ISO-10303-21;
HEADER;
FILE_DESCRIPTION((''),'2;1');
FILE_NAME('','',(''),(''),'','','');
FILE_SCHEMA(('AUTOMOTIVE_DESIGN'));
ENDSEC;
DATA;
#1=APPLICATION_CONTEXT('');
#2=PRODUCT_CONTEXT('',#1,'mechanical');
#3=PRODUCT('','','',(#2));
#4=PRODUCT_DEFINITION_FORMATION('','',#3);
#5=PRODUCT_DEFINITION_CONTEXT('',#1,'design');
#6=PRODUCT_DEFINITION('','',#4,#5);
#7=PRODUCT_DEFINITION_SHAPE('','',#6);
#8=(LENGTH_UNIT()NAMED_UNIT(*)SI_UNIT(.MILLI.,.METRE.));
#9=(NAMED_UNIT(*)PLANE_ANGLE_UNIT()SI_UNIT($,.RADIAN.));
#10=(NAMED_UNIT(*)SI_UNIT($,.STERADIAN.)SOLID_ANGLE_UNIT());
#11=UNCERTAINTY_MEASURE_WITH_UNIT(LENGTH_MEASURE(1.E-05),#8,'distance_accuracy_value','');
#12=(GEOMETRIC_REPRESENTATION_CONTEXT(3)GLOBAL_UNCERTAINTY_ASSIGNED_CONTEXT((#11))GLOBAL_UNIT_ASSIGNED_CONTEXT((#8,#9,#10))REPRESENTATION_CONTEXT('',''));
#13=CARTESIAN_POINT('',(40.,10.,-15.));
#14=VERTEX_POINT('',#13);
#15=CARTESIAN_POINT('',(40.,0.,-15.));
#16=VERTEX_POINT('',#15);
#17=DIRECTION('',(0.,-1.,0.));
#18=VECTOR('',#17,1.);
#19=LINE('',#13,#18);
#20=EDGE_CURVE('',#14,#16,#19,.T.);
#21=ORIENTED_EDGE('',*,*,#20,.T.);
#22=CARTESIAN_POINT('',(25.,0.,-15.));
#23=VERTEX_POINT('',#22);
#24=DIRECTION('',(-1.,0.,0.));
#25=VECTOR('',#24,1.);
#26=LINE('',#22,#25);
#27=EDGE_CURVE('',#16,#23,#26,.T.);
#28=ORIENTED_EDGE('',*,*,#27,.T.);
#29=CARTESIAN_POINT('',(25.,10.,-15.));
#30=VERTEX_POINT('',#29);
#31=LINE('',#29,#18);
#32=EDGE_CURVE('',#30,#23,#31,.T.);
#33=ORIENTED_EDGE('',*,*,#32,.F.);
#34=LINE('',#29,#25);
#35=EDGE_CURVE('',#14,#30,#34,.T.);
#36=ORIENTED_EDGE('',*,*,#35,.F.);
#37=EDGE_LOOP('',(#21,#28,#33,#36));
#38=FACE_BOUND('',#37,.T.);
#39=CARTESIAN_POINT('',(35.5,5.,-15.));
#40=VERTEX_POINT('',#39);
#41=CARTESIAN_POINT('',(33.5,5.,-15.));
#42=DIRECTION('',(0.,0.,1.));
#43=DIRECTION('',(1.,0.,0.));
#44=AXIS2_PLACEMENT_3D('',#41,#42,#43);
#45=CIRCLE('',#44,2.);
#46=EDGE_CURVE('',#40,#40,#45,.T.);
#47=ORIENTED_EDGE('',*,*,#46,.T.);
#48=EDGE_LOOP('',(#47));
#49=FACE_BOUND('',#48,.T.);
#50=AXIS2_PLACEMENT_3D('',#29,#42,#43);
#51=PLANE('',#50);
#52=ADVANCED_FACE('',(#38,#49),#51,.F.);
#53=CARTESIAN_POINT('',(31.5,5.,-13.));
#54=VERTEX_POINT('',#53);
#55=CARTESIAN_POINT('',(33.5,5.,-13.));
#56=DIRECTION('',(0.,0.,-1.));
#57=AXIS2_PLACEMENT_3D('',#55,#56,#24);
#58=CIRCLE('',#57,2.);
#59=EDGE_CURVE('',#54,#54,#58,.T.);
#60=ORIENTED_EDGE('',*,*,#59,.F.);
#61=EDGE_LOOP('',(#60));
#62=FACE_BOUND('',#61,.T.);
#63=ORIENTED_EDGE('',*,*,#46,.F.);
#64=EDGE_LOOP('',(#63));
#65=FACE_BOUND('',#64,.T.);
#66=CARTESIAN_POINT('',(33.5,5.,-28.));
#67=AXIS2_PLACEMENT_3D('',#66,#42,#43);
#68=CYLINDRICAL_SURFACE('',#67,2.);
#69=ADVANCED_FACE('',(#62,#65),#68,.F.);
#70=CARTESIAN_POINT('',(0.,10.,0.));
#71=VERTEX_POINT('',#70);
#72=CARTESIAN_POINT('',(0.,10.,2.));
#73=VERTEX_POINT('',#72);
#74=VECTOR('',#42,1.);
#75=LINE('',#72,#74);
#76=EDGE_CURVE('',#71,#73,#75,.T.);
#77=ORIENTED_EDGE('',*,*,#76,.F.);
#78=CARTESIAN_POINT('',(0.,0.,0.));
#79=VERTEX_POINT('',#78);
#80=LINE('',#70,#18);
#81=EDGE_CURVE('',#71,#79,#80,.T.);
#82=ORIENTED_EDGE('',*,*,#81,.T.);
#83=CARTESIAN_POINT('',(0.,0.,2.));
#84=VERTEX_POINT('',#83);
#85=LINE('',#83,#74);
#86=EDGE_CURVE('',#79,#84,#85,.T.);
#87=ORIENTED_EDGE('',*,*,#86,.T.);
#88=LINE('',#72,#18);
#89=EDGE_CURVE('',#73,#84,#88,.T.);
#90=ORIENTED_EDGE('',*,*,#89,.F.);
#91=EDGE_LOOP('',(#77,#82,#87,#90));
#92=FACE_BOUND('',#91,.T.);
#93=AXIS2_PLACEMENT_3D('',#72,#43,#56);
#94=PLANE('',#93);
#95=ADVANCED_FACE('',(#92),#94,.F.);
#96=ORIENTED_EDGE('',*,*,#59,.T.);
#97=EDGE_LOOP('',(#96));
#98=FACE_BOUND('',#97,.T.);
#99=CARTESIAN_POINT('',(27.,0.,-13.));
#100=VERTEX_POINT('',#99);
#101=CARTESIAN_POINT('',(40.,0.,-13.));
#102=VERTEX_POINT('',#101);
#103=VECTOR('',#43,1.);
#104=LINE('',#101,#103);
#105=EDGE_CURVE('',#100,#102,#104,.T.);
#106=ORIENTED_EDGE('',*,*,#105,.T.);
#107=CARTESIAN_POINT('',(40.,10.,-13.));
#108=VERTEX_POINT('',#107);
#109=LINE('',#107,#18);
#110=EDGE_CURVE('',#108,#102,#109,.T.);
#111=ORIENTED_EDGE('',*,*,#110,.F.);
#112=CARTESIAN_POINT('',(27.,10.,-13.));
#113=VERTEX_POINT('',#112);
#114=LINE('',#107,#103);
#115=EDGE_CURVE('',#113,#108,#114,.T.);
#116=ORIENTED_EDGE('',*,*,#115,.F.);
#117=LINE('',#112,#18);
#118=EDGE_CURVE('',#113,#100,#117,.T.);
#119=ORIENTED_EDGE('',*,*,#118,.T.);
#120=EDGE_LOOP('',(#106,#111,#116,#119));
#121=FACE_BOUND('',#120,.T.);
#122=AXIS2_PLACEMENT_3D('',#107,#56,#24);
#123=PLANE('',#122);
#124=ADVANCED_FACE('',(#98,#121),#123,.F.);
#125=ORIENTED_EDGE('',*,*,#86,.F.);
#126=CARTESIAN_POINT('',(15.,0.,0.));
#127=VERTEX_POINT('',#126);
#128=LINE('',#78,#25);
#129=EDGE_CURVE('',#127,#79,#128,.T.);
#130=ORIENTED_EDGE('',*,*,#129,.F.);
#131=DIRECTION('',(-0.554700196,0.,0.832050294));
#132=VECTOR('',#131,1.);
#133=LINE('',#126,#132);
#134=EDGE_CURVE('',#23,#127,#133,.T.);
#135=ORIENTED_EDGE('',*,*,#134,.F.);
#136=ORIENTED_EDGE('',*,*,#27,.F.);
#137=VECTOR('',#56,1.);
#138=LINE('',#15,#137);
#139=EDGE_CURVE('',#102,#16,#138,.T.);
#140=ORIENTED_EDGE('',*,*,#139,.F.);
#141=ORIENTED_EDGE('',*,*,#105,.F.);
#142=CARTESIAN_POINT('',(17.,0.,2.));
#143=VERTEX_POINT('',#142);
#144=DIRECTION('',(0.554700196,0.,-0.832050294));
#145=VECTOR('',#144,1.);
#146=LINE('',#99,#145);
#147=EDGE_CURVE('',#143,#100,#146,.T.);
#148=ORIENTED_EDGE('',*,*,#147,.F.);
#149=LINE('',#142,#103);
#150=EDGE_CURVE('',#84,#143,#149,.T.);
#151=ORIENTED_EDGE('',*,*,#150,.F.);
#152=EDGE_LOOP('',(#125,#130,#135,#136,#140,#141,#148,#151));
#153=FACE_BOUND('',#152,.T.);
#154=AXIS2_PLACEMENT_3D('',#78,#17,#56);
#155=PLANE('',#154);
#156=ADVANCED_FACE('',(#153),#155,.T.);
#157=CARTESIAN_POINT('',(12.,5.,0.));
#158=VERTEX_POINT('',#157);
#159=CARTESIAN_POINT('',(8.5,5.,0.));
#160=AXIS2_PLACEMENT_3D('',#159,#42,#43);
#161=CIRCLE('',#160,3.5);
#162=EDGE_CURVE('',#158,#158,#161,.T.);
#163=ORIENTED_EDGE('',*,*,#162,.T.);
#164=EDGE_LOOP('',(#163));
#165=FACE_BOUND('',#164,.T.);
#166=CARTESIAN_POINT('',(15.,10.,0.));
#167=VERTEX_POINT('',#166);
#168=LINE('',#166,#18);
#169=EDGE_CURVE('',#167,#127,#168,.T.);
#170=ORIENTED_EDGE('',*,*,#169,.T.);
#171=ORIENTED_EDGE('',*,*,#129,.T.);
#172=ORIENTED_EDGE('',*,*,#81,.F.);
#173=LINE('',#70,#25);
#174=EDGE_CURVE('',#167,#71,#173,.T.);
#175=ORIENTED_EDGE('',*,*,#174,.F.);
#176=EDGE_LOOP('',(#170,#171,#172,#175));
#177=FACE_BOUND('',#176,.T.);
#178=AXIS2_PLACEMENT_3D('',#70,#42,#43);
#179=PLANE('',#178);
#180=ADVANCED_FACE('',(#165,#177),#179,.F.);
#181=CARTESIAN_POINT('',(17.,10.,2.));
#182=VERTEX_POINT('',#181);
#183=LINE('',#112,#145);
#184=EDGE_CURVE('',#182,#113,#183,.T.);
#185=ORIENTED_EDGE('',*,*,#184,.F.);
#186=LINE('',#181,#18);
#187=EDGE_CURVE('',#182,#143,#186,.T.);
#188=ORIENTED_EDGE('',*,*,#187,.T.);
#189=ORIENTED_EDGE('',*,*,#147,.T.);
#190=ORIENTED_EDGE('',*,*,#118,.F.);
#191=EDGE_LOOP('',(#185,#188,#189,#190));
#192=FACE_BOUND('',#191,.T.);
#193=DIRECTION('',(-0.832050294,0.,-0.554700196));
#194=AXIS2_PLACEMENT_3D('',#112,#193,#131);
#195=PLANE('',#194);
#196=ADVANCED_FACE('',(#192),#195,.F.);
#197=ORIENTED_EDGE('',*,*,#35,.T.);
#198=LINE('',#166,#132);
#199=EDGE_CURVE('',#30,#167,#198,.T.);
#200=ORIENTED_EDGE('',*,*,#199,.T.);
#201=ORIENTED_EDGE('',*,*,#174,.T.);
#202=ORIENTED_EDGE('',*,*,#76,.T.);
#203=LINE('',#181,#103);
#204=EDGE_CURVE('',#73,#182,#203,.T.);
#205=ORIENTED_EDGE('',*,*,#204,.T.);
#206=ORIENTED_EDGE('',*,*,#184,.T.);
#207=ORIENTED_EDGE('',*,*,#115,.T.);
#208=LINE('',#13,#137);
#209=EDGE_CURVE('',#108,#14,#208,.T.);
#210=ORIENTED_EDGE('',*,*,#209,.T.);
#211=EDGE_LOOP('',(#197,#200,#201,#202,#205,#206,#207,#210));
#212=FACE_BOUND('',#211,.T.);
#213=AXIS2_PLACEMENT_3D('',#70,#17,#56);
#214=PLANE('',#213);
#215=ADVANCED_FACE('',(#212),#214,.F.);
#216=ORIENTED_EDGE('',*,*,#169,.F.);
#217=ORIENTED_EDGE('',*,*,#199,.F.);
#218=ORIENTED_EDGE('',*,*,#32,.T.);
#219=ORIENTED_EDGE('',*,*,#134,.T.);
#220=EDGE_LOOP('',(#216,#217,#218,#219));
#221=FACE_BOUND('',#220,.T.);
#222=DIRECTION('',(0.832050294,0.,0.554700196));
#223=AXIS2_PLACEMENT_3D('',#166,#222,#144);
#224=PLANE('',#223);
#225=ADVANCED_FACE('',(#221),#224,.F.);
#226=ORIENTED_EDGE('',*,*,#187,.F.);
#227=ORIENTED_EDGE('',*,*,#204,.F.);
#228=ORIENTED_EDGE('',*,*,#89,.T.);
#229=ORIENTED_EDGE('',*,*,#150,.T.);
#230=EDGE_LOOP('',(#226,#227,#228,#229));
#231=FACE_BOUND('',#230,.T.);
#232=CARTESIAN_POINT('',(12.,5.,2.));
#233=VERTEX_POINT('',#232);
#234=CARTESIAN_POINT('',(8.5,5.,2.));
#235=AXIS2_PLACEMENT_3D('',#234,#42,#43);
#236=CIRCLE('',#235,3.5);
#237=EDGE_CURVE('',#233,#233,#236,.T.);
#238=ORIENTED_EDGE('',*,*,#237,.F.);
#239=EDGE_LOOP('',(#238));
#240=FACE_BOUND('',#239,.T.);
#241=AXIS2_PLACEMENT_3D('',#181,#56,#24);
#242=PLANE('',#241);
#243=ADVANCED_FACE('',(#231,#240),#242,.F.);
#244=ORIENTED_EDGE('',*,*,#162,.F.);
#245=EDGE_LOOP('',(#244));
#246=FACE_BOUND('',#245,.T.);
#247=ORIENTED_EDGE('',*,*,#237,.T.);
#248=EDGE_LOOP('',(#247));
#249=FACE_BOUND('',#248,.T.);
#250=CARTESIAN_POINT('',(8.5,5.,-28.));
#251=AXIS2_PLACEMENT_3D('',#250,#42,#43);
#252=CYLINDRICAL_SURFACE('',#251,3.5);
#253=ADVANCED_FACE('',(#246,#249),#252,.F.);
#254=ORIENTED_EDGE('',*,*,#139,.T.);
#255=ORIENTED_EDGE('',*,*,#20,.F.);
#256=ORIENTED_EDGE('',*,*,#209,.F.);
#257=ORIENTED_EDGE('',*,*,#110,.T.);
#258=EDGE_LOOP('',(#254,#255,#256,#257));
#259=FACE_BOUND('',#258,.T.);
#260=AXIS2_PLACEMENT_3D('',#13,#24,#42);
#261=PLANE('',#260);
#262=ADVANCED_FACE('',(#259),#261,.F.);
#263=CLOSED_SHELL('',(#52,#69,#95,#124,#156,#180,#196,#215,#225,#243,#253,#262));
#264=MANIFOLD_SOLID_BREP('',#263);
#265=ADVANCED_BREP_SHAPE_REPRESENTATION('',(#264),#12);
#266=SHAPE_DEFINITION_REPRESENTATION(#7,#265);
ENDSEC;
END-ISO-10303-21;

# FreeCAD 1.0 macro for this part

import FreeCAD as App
import Part
import Sketcher

V = App.Vector
Q = App.Units.Quantity


def add_polygon(sketch, points):
    """Adds a closed chain of lines whose ends are joined by coincident constraints."""
    first, n = sketch.GeometryCount, len(points)
    for a, b in zip(points, points[1:] + points[:1]):
        sketch.addGeometry(Part.LineSegment(App.Vector(*a, 0), App.Vector(*b, 0)), False)
    for i in range(n):
        sketch.addConstraint(Sketcher.Constraint("Coincident", first + i, 2, first + (i + 1) % n, 1))

doc = App.newDocument("Part")
params = doc.addObject("Spreadsheet::Sheet", "Params")
for row, (alias, value) in enumerate([
    ("sketch1_width", "15 mm"),
    ("sketch1_width2", "17 mm"),
    ("sketch1_height", "2 mm"),
    ("pad1_length", "10 mm"),
    ("sketch2_diameter", "7 mm"),
    ("sketch2_diameter2", "4 mm"),
    ("pocket1_length", "30 mm"),
], start=1):
    params.set(f"A{row}", alias)
    params.set(f"B{row}", "=" + value)
    params.setAlias(f"B{row}", alias)

body = doc.addObject("PartDesign::Body", "Body")

# Sketch on XZ plane
sketch1 = body.newObject("Sketcher::SketchObject", "Sketch")
sketch1.AttachmentSupport = (doc.getObject("XZ_Plane"), [""])
sketch1.MapMode = "FlatFace"
add_polygon(sketch1, [(15, 0), (0, 0), (0, 2), (17, 2), (27, -13), (40, -13), (40, -15), (25, -15)])  # lines 0-7
sketch1.addConstraint([
    Sketcher.Constraint("Horizontal", 0),
    Sketcher.Constraint("Vertical", 1),
    Sketcher.Constraint("Horizontal", 2),
    Sketcher.Constraint("Horizontal", 4),
    Sketcher.Constraint("Vertical", 5),
    Sketcher.Constraint("Horizontal", 6),
    Sketcher.Constraint("Coincident", 0, 2, -1, 1),
    Sketcher.Constraint("Parallel", 3, 7),
    Sketcher.Constraint("Equal", 0, 6),
    Sketcher.Constraint("Equal", 1, 5),
    Sketcher.Constraint("DistanceX", 0, 2, 0, 1, Q("15 mm")),
    Sketcher.Constraint("DistanceX", 2, 1, 2, 2, Q("17 mm")),
    Sketcher.Constraint("DistanceY", 1, 1, 1, 2, Q("2 mm")),
    Sketcher.Constraint("DistanceX", -1, 1, 3, 2, Q("27 mm")),
    Sketcher.Constraint("DistanceY", 3, 2, -1, 1, Q("13 mm")),
])
sketch1.setExpression("Constraints[18]", "Params.sketch1_width")
sketch1.setExpression("Constraints[19]", "Params.sketch1_width2")
sketch1.setExpression("Constraints[20]", "Params.sketch1_height")
pad1 = body.newObject("PartDesign::Pad", "Pad")
pad1.Profile = sketch1
pad1.setExpression("Length", "Params.pad1_length")
pad1.Reversed = True

# Sketch on XY plane
sketch2 = body.newObject("Sketcher::SketchObject", "Sketch001")
sketch2.AttachmentSupport = (doc.getObject("XY_Plane"), [""])
sketch2.MapMode = "FlatFace"
sketch2.AttachmentOffset = App.Placement(V(0, 0, 2), App.Rotation())
sketch2.addGeometry([
    Part.Circle(V(8.5, 5, 0), V(0, 0, 1), 3.5),
    Part.Circle(V(33.5, 5, 0), V(0, 0, 1), 2),
], False)
sketch2.addConstraint([
    Sketcher.Constraint("Horizontal", 0, 3, 1, 3),
    Sketcher.Constraint("Diameter", 0, Q("7 mm")),
    Sketcher.Constraint("Diameter", 1, Q("4 mm")),
    Sketcher.Constraint("DistanceY", -1, 1, 0, 3, Q("5 mm")),
    Sketcher.Constraint("DistanceX", 0, 3, 1, 3, Q("25 mm")),
    Sketcher.Constraint("DistanceX", -1, 1, 0, 3, Q("8.5 mm")),
])
sketch2.setExpression("Constraints[1]", "Params.sketch2_diameter")
sketch2.setExpression("Constraints[2]", "Params.sketch2_diameter2")
pocket1 = body.newObject("PartDesign::Pocket", "Pocket")
pocket1.Profile = sketch2
pocket1.setExpression("Length", "Params.pocket1_length")

doc.recompute()
